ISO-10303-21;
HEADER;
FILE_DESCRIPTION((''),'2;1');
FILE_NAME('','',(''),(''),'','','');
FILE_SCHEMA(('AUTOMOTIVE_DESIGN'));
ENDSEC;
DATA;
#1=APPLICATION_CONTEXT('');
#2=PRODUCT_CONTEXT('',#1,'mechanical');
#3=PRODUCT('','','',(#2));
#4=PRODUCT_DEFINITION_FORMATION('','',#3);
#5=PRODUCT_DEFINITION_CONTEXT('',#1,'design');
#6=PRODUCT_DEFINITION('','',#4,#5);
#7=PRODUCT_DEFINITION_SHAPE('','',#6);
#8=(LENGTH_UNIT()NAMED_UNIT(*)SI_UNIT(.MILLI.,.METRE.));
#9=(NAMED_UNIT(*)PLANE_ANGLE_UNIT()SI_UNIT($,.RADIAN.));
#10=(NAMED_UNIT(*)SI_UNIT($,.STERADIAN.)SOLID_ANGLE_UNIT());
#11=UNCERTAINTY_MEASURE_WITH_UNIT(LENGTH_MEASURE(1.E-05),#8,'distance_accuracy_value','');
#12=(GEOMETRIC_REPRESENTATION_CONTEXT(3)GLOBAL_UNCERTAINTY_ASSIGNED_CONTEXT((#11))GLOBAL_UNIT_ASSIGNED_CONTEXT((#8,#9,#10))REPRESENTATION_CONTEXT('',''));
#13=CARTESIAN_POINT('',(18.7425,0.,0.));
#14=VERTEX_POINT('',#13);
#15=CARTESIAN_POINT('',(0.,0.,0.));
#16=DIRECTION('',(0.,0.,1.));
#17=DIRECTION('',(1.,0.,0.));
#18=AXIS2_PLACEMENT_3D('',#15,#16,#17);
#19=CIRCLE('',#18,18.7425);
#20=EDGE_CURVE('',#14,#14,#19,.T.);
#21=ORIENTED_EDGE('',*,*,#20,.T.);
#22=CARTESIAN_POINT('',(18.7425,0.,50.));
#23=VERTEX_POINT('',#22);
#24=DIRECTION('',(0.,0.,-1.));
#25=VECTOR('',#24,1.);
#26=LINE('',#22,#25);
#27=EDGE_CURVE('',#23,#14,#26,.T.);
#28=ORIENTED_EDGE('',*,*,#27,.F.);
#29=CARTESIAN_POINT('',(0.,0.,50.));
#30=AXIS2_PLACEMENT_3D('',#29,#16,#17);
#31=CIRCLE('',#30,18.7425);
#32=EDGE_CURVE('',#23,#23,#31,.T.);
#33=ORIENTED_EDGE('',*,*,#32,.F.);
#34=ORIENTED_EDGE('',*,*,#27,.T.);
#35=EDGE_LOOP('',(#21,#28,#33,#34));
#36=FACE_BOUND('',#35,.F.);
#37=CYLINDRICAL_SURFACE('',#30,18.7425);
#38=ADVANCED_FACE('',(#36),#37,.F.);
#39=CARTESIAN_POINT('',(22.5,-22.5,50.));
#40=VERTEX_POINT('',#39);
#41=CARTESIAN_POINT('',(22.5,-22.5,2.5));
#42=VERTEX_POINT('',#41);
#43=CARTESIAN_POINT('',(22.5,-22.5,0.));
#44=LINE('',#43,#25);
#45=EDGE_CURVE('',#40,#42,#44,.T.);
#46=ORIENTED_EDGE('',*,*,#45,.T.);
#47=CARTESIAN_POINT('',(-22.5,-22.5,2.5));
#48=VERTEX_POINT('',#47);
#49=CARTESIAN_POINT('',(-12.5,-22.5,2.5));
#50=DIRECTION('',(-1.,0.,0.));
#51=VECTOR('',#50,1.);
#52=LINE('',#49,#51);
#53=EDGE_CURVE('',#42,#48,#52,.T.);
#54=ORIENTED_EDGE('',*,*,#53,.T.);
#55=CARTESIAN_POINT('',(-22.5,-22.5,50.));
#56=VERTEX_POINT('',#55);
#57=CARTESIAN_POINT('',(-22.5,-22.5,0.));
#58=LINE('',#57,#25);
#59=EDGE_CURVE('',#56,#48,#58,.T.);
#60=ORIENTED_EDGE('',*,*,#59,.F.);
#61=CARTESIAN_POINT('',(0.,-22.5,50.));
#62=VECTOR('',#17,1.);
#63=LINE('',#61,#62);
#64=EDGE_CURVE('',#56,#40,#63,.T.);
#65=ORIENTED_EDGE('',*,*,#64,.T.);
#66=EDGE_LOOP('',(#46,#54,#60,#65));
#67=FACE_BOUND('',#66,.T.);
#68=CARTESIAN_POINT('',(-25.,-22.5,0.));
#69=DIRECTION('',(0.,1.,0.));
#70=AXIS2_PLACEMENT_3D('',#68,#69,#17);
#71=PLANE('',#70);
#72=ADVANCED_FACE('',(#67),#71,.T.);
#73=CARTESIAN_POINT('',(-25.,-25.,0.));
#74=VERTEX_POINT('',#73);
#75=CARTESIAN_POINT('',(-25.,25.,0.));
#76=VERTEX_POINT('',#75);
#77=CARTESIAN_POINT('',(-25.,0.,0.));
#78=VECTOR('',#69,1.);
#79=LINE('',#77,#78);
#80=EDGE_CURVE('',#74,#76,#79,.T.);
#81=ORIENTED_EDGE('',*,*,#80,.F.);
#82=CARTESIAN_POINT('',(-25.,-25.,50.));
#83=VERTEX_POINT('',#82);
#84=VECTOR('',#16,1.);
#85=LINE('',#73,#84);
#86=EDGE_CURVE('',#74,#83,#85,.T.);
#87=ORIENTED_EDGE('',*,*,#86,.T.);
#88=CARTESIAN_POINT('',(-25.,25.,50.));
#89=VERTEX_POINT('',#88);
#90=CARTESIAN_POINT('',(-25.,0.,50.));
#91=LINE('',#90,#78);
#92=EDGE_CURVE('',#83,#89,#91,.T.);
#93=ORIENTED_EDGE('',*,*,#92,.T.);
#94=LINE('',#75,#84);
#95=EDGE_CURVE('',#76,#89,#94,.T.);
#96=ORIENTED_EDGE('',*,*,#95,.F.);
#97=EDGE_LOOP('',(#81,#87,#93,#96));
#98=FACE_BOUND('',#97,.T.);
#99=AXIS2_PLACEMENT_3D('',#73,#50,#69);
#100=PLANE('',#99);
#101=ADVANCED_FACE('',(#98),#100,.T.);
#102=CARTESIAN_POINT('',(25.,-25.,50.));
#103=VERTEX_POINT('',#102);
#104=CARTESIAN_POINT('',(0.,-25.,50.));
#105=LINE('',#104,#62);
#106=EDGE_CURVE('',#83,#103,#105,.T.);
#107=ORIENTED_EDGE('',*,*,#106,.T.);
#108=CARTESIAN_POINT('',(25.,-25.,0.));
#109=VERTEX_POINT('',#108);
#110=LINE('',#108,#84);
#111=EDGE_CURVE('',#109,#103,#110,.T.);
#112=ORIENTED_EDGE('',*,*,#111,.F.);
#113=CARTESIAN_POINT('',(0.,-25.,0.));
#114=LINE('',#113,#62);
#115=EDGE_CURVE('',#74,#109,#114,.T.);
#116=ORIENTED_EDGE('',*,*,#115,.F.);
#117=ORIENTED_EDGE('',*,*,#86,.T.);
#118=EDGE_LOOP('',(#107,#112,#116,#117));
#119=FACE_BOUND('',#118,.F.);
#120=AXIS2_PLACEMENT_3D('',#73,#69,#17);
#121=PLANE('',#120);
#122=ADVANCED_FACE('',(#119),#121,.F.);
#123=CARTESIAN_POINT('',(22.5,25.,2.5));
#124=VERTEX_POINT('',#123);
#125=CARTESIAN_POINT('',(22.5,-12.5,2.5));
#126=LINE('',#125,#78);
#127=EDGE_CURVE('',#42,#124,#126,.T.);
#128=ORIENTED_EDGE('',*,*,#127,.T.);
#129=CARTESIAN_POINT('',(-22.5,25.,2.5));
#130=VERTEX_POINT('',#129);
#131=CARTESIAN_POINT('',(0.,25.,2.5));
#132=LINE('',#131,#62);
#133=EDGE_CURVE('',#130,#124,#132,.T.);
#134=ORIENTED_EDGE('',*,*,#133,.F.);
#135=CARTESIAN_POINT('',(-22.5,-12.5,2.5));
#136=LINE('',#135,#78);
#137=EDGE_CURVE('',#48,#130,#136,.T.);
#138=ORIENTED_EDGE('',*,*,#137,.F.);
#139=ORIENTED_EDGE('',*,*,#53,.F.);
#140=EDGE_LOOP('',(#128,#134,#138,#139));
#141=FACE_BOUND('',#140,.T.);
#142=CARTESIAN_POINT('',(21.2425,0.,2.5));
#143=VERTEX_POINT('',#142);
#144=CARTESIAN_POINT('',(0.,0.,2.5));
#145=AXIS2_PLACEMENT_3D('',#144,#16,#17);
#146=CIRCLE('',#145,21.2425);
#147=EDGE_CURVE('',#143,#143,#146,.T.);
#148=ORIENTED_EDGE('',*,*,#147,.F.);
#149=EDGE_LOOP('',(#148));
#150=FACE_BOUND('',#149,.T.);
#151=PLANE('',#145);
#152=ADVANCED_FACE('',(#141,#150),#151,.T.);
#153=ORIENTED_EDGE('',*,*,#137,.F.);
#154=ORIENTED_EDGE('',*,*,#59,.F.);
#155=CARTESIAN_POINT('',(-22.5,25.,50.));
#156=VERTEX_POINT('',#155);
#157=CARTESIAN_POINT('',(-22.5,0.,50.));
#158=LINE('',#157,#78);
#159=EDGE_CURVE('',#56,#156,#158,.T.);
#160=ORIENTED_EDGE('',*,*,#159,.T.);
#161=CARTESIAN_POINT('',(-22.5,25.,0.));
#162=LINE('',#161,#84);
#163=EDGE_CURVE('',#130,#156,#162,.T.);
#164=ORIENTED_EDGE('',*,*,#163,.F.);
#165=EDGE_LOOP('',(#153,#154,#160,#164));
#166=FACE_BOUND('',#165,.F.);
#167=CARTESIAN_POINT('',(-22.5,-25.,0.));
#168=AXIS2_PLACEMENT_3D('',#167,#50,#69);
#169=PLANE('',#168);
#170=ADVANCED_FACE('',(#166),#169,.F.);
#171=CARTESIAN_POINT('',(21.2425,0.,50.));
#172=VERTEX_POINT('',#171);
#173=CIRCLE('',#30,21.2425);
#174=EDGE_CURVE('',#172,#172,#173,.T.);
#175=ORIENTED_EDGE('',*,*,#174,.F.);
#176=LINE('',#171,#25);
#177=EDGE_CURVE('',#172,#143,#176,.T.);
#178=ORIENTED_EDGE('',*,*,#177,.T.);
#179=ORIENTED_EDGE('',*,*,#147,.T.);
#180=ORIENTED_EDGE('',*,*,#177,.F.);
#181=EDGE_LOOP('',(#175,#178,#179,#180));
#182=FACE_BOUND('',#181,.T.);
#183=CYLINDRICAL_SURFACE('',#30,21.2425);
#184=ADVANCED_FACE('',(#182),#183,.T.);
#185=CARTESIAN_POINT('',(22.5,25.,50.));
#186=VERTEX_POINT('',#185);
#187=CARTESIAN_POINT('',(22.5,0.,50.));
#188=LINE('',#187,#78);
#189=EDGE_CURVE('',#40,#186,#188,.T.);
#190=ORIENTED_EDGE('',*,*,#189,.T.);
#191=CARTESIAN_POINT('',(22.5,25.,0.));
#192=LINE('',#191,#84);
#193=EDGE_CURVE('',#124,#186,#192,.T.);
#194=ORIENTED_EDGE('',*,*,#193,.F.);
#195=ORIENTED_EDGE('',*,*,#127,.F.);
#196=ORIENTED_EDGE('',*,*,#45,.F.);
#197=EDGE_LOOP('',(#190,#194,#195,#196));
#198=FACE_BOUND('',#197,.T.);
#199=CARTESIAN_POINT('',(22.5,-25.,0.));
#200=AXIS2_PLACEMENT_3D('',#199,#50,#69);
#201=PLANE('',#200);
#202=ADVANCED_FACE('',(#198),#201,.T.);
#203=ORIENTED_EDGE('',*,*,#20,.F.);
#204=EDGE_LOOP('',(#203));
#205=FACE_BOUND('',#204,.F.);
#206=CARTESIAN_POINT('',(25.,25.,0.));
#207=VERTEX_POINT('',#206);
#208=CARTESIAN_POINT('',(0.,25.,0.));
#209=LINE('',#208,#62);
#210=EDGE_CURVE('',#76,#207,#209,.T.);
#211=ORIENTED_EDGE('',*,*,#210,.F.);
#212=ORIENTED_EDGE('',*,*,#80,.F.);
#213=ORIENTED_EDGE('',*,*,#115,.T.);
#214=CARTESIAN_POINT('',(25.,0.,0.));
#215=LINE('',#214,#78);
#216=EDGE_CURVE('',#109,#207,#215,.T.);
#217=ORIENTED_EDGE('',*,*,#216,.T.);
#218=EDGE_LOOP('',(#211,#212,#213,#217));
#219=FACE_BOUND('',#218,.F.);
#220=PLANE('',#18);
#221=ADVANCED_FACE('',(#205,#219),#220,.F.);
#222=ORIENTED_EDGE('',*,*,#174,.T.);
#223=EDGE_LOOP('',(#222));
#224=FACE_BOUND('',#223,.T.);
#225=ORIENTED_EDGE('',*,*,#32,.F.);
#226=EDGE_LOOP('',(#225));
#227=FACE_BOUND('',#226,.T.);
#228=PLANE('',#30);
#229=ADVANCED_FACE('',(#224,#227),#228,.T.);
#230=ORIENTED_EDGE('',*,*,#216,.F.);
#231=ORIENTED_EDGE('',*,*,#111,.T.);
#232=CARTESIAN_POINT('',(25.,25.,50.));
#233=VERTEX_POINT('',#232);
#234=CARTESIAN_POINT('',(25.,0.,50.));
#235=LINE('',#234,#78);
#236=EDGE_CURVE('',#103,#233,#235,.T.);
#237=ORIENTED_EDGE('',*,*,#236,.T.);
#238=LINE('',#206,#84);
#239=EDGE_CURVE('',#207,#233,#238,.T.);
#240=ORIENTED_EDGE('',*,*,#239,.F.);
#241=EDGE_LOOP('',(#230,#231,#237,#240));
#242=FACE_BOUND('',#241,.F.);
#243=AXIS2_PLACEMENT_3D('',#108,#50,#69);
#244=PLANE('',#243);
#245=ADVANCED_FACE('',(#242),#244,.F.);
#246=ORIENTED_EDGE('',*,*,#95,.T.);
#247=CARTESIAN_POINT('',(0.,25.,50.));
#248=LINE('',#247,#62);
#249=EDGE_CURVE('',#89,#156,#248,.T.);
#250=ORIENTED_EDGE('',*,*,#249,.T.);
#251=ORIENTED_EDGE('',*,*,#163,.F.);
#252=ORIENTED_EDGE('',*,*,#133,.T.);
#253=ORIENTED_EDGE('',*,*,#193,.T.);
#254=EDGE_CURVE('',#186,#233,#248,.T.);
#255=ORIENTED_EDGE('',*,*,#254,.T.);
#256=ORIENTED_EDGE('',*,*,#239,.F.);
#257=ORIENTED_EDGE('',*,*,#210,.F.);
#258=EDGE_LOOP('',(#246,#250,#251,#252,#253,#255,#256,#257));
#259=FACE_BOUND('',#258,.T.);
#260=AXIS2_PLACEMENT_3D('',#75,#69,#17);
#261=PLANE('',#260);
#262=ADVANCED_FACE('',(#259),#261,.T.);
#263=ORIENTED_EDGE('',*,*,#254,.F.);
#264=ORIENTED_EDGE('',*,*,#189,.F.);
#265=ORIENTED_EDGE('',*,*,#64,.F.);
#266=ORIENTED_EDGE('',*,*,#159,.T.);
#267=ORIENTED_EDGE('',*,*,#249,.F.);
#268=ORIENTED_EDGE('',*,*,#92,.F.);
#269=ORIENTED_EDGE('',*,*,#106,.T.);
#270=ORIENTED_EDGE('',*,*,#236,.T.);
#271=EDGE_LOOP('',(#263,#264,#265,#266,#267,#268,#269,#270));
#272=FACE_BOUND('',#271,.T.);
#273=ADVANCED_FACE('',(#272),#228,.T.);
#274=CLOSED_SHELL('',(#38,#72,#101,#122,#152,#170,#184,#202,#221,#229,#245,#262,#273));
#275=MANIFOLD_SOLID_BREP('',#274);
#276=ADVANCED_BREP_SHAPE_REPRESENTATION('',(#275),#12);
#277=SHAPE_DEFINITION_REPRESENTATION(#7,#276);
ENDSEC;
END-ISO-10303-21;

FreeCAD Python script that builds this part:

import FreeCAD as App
import Part
import Sketcher
Q = App.Units.Quantity


def faces_at(feature, points):
    """Names of the faces that lie closest to the given points."""
    faces = feature.Shape.Faces
    near = lambda p: min(range(len(faces)), key=lambda i: faces[i].distToShape(Part.Vertex(*p))[0])
    return sorted({f"Face{near(p) + 1}" for p in points})


def add_polygon(sketch, points):
    """Adds a closed chain of lines whose ends are joined by coincident constraints."""
    first, n = sketch.GeometryCount, len(points)
    for a, b in zip(points, points[1:] + points[:1]):
        sketch.addGeometry(Part.LineSegment(App.Vector(*a, 0), App.Vector(*b, 0)), False)
    for i in range(n):
        sketch.addConstraint(Sketcher.Constraint("Coincident", first + i, 2, first + (i + 1) % n, 1))

doc = App.newDocument("Part")
body = doc.addObject("PartDesign::Body", "Body")

# Sketch on XY plane
sketch1 = body.newObject("Sketcher::SketchObject", "Sketch")
sketch1.AttachmentSupport = (doc.getObject("XY_Plane"), [""])
sketch1.MapMode = "FlatFace"
add_polygon(sketch1, [(-25, 25), (-25, -25), (25, -25), (25, 25)])  # lines 0-3
sketch1.addConstraint(Sketcher.Constraint("Vertical", 0))
sketch1.addConstraint(Sketcher.Constraint("Horizontal", 1))
sketch1.addConstraint(Sketcher.Constraint("Vertical", 2))
sketch1.addConstraint(Sketcher.Constraint("Horizontal", 3))
sketch1.addConstraint(Sketcher.Constraint("Symmetric", 0, 2, 2, 2, -1, 1))
sketch1.addConstraint(Sketcher.Constraint("Equal", 3, 0))
sketch1.addConstraint(Sketcher.Constraint("DistanceX", 1, 1, 1, 2, Q("50 mm")))
pad1 = body.newObject("PartDesign::Pad", "Pad")
pad1.Profile = sketch1
pad1.Length = 50

# Sketch on XY plane
sketch2 = body.newObject("Sketcher::SketchObject", "Sketch001")
sketch2.AttachmentSupport = (doc.getObject("XY_Plane"), [""])
sketch2.MapMode = "FlatFace"
sketch2.AttachmentOffset = App.Placement(App.Vector(0, 0, 50), App.Rotation())
sketch2.addGeometry(Part.Circle(App.Vector(0, 0, 0), App.Vector(0, 0, 1), 19), False)
sketch2.addConstraint(Sketcher.Constraint("Coincident", 0, 3, -1, 1))
sketch2.addConstraint(Sketcher.Constraint("Diameter", 0, Q("37.485 mm")))
pocket1 = body.newObject("PartDesign::Pocket", "Pocket")
pocket1.Profile = sketch2
pocket1.Length = 50
doc.recompute()

thickness = body.newObject("PartDesign::Thickness", "Thickness")
thickness.Base = (pocket1, faces_at(pocket1, [(-20, 0, 50), (0, 25, 25)]))
thickness.Value = 2.5
thickness.Reversed = True
thickness.Join = "Arc"

doc.recompute()
